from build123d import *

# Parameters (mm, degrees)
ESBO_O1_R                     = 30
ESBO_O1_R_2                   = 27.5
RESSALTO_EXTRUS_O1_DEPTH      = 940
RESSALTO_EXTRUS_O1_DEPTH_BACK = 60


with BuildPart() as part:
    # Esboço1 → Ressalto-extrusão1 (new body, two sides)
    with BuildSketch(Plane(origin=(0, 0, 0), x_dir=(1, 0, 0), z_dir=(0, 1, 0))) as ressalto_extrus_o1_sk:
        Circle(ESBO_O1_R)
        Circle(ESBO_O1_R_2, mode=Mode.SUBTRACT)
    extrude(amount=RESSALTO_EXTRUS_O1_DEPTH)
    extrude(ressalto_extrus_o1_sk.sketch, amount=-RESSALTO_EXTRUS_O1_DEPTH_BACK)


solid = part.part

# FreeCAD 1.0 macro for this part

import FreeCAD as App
import Part
import Sketcher
from FreeCAD import Vector
Q = App.Units.Quantity

doc = App.newDocument("Part")
body = doc.addObject("PartDesign::Body", "Body")

sketch1 = doc.addObject("Sketcher::SketchObject", "Sketch")
body.addObject(sketch1)
sketch1.AttachmentSupport = (doc.XZ_Plane, [""])
sketch1.MapMode = "FlatFace"
sketch1.addGeometry(Part.Circle(Vector(0, 0, 0), Vector(0, 0, 1), 30), False)
sketch1.addGeometry(Part.Circle(Vector(0, 0, 0), Vector(0, 0, 1), 28), False)
sketch1.addConstraint(Sketcher.Constraint("Coincident", 0, 3, -1, 1))
sketch1.addConstraint(Sketcher.Constraint("Coincident", 1, 3, -1, 1))
sketch1.addConstraint(Sketcher.Constraint("Diameter", 0, Q("60 mm")))
sketch1.addConstraint(Sketcher.Constraint("Diameter", 1, Q("55 mm")))
pad1 = doc.addObject("PartDesign::Pad", "Pad")
body.addObject(pad1)
pad1.Profile = sketch1
pad1.Type = "TwoLengths"
pad1.Length = 940
pad1.Length2 = 60
pad1.Reversed = True

doc.recompute()
